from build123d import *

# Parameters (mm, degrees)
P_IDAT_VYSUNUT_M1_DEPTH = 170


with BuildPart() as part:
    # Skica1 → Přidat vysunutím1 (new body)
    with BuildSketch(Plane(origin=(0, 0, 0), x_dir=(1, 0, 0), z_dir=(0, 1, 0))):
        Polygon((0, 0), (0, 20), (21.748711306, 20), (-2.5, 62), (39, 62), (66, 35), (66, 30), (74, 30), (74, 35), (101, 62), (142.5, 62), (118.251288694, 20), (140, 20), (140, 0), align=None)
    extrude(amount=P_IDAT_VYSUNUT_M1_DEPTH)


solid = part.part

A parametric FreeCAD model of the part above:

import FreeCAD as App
import Part
import Sketcher
Q = App.Units.Quantity


def add_polygon(sketch, points):
    """Adds a closed chain of lines whose ends are joined by coincident constraints."""
    first, n = sketch.GeometryCount, len(points)
    for a, b in zip(points, points[1:] + points[:1]):
        sketch.addGeometry(Part.LineSegment(App.Vector(*a, 0), App.Vector(*b, 0)), False)
    for i in range(n):
        sketch.addConstraint(Sketcher.Constraint("Coincident", first + i, 2, first + (i + 1) % n, 1))

doc = App.newDocument("Part")
params = doc.addObject("Spreadsheet::Sheet", "Params")
for row, (alias, value) in enumerate([
    ("sketch1_width", "140 mm"),
    ("sketch1_width2", "8 mm"),
    ("sketch1_height", "20 mm"),
    ("sketch1_height2", "5 mm"),
    ("sketch1_width3", "41.5 mm"),
    ("pad1_length", "170 mm"),
], start=1):
    params.set(f"A{row}", alias)
    params.set(f"B{row}", "=" + value)
    params.setAlias(f"B{row}", alias)

body = doc.addObject("PartDesign::Body", "Body")

# Sketch on XZ plane
sketch1 = body.newObject("Sketcher::SketchObject", "Sketch")
sketch1.AttachmentSupport = (doc.getObject("XZ_Plane"), [""])
sketch1.MapMode = "FlatFace"
add_polygon(sketch1, [(0, -20), (0, 0), (140, 0), (140, -20), (118, -20), (142, -62), (101, -62), (74, -35), (74, -30), (66, -30), (66, -35), (39, -62), (-2, -62), (22, -20)])  # lines 0-13
sketch1.addConstraint(Sketcher.Constraint("Vertical", 0))
sketch1.addConstraint(Sketcher.Constraint("Horizontal", 1))
sketch1.addConstraint(Sketcher.Constraint("Vertical", 2))
sketch1.addConstraint(Sketcher.Constraint("Horizontal", 3))
sketch1.addConstraint(Sketcher.Constraint("Horizontal", 5))
sketch1.addConstraint(Sketcher.Constraint("Vertical", 7))
sketch1.addConstraint(Sketcher.Constraint("Horizontal", 8))
sketch1.addConstraint(Sketcher.Constraint("Vertical", 9))
sketch1.addConstraint(Sketcher.Constraint("Horizontal", 11))
sketch1.addConstraint(Sketcher.Constraint("Horizontal", 13))
sketch1.addConstraint(Sketcher.Constraint("Coincident", 0, 2, -1, 1))
sketch1.addConstraint(Sketcher.Constraint("Perpendicular", 6, 10))
sketch1.addConstraint(Sketcher.Constraint("Horizontal", 6, 2, 9, 2))
sketch1.addConstraint(Sketcher.Constraint("Horizontal", 5, 2, 10, 2))
sketch1.addConstraint(Sketcher.Constraint("Horizontal", 3, 2, 12, 2))
sketch1.addConstraint(Sketcher.Constraint("Equal", 5, 11))
sketch1.addConstraint(Sketcher.Constraint("Equal", 3, 13))
sketch1.addConstraint(Sketcher.Constraint("Equal", 6, 10))
sketch1.addConstraint(Sketcher.Constraint("Equal", 4, 12))
sketch1.addConstraint(Sketcher.Constraint("DistanceX", 1, 1, 1, 2, Q("140 mm")))
sketch1.addConstraint(Sketcher.Constraint("DistanceX", 8, 2, 8, 1, Q("8 mm")))
sketch1.addConstraint(Sketcher.Constraint("DistanceY", 0, 1, 0, 2, Q("20 mm")))
sketch1.addConstraint(Sketcher.Constraint("DistanceY", 7, 1, 7, 2, Q("5 mm")))
sketch1.addConstraint(Sketcher.Constraint("Angle", 4, Q("-60 deg")))
sketch1.addConstraint(Sketcher.Constraint("DistanceX", 5, 2, 5, 1, Q("41.5 mm")))
sketch1.addConstraint(Sketcher.Constraint("DistanceY", 4, 2, -1, 1, Q("62 mm")))
sketch1.addConstraint(Sketcher.Constraint("DistanceX", -1, 1, 5, 2, Q("101 mm")))
sketch1.setExpression("Constraints[33]", "Params.sketch1_width")
sketch1.setExpression("Constraints[34]", "Params.sketch1_width2")
sketch1.setExpression("Constraints[35]", "Params.sketch1_height")
sketch1.setExpression("Constraints[36]", "Params.sketch1_height2")
sketch1.setExpression("Constraints[38]", "Params.sketch1_width3")
pad1 = body.newObject("PartDesign::Pad", "Pad")
pad1.Profile = sketch1
pad1.setExpression("Length", "Params.pad1_length")
pad1.Reversed = True

doc.recompute()
